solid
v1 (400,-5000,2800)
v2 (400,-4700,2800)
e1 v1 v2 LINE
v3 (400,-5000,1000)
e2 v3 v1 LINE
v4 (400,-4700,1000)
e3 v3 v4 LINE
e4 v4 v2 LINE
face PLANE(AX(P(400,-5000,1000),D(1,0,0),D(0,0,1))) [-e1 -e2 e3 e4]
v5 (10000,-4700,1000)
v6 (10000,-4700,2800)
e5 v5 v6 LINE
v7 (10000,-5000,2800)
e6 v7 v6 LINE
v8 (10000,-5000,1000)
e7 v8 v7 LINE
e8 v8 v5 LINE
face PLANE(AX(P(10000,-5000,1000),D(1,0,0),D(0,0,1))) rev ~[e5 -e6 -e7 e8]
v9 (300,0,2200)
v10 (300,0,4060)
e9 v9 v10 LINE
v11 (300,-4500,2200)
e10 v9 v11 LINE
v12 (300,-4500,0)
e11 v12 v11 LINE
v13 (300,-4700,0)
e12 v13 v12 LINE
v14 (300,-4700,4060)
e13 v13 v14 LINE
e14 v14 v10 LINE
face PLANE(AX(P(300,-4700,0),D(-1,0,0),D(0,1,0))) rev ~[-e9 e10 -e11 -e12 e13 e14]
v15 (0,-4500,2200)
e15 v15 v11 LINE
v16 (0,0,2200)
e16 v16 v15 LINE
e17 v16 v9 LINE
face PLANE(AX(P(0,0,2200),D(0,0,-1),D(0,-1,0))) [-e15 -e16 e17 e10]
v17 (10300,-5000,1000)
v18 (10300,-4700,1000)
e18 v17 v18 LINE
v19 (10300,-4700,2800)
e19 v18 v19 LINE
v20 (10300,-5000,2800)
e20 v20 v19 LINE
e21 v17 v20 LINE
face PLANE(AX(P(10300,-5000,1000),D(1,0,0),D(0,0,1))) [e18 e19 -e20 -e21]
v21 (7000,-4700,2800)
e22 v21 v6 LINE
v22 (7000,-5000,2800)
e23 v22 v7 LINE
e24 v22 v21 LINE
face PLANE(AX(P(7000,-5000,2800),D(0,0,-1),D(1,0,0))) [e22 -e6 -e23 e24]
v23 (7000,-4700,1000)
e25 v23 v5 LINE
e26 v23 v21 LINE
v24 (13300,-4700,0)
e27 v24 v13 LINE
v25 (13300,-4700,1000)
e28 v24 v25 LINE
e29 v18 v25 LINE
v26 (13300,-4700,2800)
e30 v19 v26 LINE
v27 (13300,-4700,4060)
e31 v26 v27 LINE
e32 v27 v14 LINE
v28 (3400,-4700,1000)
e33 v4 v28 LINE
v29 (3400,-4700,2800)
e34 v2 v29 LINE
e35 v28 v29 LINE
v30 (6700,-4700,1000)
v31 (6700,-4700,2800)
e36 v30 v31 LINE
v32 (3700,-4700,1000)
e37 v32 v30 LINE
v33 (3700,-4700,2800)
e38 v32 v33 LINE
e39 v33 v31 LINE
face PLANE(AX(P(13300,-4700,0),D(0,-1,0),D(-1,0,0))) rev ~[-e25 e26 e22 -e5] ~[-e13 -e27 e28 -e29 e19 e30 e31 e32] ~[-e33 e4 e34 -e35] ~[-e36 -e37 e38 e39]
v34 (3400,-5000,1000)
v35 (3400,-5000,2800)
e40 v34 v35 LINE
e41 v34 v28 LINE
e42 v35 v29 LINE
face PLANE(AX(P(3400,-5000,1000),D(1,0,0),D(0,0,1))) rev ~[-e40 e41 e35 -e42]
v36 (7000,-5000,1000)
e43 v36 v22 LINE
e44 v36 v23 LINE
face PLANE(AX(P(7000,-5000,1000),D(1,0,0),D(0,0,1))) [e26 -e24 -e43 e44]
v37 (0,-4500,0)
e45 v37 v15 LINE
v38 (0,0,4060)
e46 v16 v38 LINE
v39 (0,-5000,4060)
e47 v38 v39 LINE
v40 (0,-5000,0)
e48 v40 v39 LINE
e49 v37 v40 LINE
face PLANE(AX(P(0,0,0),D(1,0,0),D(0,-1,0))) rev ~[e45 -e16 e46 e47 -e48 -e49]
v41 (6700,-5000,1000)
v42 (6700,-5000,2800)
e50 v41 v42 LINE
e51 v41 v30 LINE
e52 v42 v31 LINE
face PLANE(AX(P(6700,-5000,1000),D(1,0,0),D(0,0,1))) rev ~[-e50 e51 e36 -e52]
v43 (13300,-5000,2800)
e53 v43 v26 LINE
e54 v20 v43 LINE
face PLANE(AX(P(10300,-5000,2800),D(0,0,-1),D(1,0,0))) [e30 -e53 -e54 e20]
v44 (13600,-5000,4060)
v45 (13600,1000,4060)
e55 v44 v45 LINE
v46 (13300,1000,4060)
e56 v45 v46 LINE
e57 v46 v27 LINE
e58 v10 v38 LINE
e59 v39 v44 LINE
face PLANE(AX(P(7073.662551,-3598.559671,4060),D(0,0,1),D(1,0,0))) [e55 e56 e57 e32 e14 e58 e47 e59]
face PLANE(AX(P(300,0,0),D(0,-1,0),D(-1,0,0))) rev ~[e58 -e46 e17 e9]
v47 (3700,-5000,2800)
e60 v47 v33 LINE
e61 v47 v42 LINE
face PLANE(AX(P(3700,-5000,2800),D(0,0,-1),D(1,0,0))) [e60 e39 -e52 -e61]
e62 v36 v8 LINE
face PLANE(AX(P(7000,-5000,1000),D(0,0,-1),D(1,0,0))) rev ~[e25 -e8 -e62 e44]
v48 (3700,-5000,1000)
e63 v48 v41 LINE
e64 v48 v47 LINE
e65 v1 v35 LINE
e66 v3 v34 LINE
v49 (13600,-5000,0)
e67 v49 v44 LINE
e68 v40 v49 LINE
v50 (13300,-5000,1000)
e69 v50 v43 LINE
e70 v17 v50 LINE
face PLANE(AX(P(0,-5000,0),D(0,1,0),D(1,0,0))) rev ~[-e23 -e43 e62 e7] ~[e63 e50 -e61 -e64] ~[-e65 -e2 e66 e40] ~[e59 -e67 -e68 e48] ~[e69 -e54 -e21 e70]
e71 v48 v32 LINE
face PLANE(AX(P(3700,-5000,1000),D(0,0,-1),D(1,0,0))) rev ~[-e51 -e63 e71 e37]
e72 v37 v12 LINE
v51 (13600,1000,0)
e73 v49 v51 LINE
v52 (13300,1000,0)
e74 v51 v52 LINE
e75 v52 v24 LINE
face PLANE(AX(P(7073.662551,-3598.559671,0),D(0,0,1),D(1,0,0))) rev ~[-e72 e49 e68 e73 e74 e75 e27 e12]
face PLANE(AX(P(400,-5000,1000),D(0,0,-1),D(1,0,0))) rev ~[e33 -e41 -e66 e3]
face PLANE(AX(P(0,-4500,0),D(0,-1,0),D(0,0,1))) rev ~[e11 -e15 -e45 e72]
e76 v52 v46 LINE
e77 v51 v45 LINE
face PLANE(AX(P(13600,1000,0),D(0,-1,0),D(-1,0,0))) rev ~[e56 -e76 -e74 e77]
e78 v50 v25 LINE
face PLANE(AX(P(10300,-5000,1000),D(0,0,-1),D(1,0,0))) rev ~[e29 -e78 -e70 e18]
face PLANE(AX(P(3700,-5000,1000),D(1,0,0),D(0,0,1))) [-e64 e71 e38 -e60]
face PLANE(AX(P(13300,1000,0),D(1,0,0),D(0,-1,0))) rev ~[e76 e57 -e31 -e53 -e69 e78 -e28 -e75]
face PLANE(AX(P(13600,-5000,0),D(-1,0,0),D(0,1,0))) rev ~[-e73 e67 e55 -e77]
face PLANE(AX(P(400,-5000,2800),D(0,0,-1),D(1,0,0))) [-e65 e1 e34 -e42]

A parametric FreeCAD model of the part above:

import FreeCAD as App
import Part
import Sketcher
Q = App.Units.Quantity


def add_polygon(sketch, points):
    """Adds a closed chain of lines whose ends are joined by coincident constraints."""
    first, n = sketch.GeometryCount, len(points)
    for a, b in zip(points, points[1:] + points[:1]):
        sketch.addGeometry(Part.LineSegment(App.Vector(*a, 0), App.Vector(*b, 0)), False)
    for i in range(n):
        sketch.addConstraint(Sketcher.Constraint("Coincident", first + i, 2, first + (i + 1) % n, 1))

doc = App.newDocument("Part")
body = doc.addObject("PartDesign::Body", "Body")

sketch1 = body.newObject("Sketcher::SketchObject", "Sketch")
sketch1.AttachmentSupport = (doc.getObject("XY_Plane"), [""])
sketch1.MapMode = "FlatFace"
add_polygon(sketch1, [(300, 0), (0, 0), (0, -5000), (13600, -5000), (13600, 1000), (13300, 1000), (13300, -4700), (300, -4700)])
sketch1.addConstraint([
    Sketcher.Constraint("Horizontal", 0),
    Sketcher.Constraint("Vertical", 1),
    Sketcher.Constraint("Horizontal", 2),
    Sketcher.Constraint("Vertical", 3),
    Sketcher.Constraint("Horizontal", 4),
    Sketcher.Constraint("Vertical", 5),
    Sketcher.Constraint("Horizontal", 6),
    Sketcher.Constraint("Vertical", 7),
    Sketcher.Constraint("Coincident", 0, 2, -1, 1),
    Sketcher.Constraint("Equal", 0, 4),
    Sketcher.Constraint("DistanceX", 0, 2, 0, 1, Q("300 mm")),
    Sketcher.Constraint("DistanceX", 2, 1, 2, 2, Q("13600 mm")),
    Sketcher.Constraint("DistanceY", 1, 2, 1, 1, Q("5000 mm")),
    Sketcher.Constraint("DistanceY", 3, 1, 3, 2, Q("6000 mm")),
    Sketcher.Constraint("DistanceY", 5, 2, 5, 1, Q("5700 mm")),
])
pad1 = body.newObject("PartDesign::Pad", "Pad")
pad1.Profile = sketch1
pad1.Length = 4060

sketch2 = body.newObject("Sketcher::SketchObject", "Sketch001")
sketch2.AttachmentSupport = (doc.getObject("XZ_Plane"), [""])
sketch2.MapMode = "FlatFace"
sketch2.AttachmentOffset = App.Placement(App.Vector(0, 0, 5000), App.Rotation())
add_polygon(sketch2, [(400, 2800), (400, 1000), (3400, 1000), (3400, 2800)])
add_polygon(sketch2, [(3700, 2800), (3700, 1000), (6700, 1000), (6700, 2800)])
add_polygon(sketch2, [(7000, 2800), (7000, 1000), (10000, 1000), (10000, 2800)])
sketch2.addConstraint([
    Sketcher.Constraint("Vertical", 0),
    Sketcher.Constraint("Horizontal", 1),
    Sketcher.Constraint("Vertical", 2),
    Sketcher.Constraint("Horizontal", 3),
    Sketcher.Constraint("Vertical", 4),
    Sketcher.Constraint("Horizontal", 5),
    Sketcher.Constraint("Vertical", 6),
    Sketcher.Constraint("Horizontal", 7),
    Sketcher.Constraint("Vertical", 8),
    Sketcher.Constraint("Horizontal", 9),
    Sketcher.Constraint("Vertical", 10),
    Sketcher.Constraint("Horizontal", 11),
    Sketcher.Constraint("Horizontal", 1, 2, 4, 2),
    Sketcher.Constraint("Horizontal", 3, 2, 6, 2),
    Sketcher.Constraint("Horizontal", 5, 2, 8, 2),
    Sketcher.Constraint("Horizontal", 7, 2, 10, 2),
    Sketcher.Constraint("Equal", 3, 5),
    Sketcher.Constraint("Equal", 7, 9),
    Sketcher.Constraint("DistanceX", 1, 1, 1, 2, Q("3000 mm")),
    Sketcher.Constraint("DistanceY", 0, 2, 0, 1, Q("1800 mm")),
    Sketcher.Constraint("DistanceX", -1, 1, 0, 2, Q("400 mm")),
    Sketcher.Constraint("DistanceY", -1, 1, 0, 2, Q("1000 mm")),
    Sketcher.Constraint("DistanceX", -1, 1, 4, 2, Q("3700 mm")),
    Sketcher.Constraint("DistanceX", -1, 1, 8, 2, Q("7000 mm")),
])
pocket1 = body.newObject("PartDesign::Pocket", "Pocket")
pocket1.Profile = sketch2
pocket1.Type = "ThroughAll"

sketch3 = body.newObject("Sketcher::SketchObject", "Sketch002")
sketch3.AttachmentSupport = (doc.getObject("YZ_Plane"), [""])
sketch3.MapMode = "FlatFace"
add_polygon(sketch3, [(0, 2200), (0, 0), (-4500, 0), (-4500, 2200)])
sketch3.addConstraint([
    Sketcher.Constraint("Vertical", 0),
    Sketcher.Constraint("Horizontal", 1),
    Sketcher.Constraint("Vertical", 2),
    Sketcher.Constraint("Horizontal", 3),
    Sketcher.Constraint("Coincident", 0, 2, -1, 1),
    Sketcher.Constraint("DistanceX", 1, 2, 1, 1, Q("4500 mm")),
    Sketcher.Constraint("DistanceY", 0, 2, 0, 1, Q("2200 mm")),
])
pocket2 = body.newObject("PartDesign::Pocket", "Pocket001")
pocket2.Profile = sketch3
pocket2.Length = 500
pocket2.Reversed = True

sketch4 = body.newObject("Sketcher::SketchObject", "Sketch003")
sketch4.AttachmentSupport = (doc.getObject("XZ_Plane"), [""])
sketch4.MapMode = "FlatFace"
sketch4.AttachmentOffset = App.Placement(App.Vector(0, 0, 5000), App.Rotation())
add_polygon(sketch4, [(10300, 2800), (10300, 1000), (13300, 1000), (13300, 2800)])
sketch4.addConstraint([
    Sketcher.Constraint("Vertical", 0),
    Sketcher.Constraint("Horizontal", 1),
    Sketcher.Constraint("Vertical", 2),
    Sketcher.Constraint("Horizontal", 3),
    Sketcher.Constraint("DistanceX", 1, 1, 1, 2, Q("3000 mm")),
    Sketcher.Constraint("DistanceY", 0, 2, 0, 1, Q("1800 mm")),
    Sketcher.Constraint("DistanceX", -1, 1, 0, 2, Q("10300 mm")),
    Sketcher.Constraint("DistanceY", -1, 1, 0, 2, Q("1000 mm")),
])
pocket3 = body.newObject("PartDesign::Pocket", "Pocket002")
pocket3.Profile = sketch4
pocket3.Length = 500

doc.recompute()
